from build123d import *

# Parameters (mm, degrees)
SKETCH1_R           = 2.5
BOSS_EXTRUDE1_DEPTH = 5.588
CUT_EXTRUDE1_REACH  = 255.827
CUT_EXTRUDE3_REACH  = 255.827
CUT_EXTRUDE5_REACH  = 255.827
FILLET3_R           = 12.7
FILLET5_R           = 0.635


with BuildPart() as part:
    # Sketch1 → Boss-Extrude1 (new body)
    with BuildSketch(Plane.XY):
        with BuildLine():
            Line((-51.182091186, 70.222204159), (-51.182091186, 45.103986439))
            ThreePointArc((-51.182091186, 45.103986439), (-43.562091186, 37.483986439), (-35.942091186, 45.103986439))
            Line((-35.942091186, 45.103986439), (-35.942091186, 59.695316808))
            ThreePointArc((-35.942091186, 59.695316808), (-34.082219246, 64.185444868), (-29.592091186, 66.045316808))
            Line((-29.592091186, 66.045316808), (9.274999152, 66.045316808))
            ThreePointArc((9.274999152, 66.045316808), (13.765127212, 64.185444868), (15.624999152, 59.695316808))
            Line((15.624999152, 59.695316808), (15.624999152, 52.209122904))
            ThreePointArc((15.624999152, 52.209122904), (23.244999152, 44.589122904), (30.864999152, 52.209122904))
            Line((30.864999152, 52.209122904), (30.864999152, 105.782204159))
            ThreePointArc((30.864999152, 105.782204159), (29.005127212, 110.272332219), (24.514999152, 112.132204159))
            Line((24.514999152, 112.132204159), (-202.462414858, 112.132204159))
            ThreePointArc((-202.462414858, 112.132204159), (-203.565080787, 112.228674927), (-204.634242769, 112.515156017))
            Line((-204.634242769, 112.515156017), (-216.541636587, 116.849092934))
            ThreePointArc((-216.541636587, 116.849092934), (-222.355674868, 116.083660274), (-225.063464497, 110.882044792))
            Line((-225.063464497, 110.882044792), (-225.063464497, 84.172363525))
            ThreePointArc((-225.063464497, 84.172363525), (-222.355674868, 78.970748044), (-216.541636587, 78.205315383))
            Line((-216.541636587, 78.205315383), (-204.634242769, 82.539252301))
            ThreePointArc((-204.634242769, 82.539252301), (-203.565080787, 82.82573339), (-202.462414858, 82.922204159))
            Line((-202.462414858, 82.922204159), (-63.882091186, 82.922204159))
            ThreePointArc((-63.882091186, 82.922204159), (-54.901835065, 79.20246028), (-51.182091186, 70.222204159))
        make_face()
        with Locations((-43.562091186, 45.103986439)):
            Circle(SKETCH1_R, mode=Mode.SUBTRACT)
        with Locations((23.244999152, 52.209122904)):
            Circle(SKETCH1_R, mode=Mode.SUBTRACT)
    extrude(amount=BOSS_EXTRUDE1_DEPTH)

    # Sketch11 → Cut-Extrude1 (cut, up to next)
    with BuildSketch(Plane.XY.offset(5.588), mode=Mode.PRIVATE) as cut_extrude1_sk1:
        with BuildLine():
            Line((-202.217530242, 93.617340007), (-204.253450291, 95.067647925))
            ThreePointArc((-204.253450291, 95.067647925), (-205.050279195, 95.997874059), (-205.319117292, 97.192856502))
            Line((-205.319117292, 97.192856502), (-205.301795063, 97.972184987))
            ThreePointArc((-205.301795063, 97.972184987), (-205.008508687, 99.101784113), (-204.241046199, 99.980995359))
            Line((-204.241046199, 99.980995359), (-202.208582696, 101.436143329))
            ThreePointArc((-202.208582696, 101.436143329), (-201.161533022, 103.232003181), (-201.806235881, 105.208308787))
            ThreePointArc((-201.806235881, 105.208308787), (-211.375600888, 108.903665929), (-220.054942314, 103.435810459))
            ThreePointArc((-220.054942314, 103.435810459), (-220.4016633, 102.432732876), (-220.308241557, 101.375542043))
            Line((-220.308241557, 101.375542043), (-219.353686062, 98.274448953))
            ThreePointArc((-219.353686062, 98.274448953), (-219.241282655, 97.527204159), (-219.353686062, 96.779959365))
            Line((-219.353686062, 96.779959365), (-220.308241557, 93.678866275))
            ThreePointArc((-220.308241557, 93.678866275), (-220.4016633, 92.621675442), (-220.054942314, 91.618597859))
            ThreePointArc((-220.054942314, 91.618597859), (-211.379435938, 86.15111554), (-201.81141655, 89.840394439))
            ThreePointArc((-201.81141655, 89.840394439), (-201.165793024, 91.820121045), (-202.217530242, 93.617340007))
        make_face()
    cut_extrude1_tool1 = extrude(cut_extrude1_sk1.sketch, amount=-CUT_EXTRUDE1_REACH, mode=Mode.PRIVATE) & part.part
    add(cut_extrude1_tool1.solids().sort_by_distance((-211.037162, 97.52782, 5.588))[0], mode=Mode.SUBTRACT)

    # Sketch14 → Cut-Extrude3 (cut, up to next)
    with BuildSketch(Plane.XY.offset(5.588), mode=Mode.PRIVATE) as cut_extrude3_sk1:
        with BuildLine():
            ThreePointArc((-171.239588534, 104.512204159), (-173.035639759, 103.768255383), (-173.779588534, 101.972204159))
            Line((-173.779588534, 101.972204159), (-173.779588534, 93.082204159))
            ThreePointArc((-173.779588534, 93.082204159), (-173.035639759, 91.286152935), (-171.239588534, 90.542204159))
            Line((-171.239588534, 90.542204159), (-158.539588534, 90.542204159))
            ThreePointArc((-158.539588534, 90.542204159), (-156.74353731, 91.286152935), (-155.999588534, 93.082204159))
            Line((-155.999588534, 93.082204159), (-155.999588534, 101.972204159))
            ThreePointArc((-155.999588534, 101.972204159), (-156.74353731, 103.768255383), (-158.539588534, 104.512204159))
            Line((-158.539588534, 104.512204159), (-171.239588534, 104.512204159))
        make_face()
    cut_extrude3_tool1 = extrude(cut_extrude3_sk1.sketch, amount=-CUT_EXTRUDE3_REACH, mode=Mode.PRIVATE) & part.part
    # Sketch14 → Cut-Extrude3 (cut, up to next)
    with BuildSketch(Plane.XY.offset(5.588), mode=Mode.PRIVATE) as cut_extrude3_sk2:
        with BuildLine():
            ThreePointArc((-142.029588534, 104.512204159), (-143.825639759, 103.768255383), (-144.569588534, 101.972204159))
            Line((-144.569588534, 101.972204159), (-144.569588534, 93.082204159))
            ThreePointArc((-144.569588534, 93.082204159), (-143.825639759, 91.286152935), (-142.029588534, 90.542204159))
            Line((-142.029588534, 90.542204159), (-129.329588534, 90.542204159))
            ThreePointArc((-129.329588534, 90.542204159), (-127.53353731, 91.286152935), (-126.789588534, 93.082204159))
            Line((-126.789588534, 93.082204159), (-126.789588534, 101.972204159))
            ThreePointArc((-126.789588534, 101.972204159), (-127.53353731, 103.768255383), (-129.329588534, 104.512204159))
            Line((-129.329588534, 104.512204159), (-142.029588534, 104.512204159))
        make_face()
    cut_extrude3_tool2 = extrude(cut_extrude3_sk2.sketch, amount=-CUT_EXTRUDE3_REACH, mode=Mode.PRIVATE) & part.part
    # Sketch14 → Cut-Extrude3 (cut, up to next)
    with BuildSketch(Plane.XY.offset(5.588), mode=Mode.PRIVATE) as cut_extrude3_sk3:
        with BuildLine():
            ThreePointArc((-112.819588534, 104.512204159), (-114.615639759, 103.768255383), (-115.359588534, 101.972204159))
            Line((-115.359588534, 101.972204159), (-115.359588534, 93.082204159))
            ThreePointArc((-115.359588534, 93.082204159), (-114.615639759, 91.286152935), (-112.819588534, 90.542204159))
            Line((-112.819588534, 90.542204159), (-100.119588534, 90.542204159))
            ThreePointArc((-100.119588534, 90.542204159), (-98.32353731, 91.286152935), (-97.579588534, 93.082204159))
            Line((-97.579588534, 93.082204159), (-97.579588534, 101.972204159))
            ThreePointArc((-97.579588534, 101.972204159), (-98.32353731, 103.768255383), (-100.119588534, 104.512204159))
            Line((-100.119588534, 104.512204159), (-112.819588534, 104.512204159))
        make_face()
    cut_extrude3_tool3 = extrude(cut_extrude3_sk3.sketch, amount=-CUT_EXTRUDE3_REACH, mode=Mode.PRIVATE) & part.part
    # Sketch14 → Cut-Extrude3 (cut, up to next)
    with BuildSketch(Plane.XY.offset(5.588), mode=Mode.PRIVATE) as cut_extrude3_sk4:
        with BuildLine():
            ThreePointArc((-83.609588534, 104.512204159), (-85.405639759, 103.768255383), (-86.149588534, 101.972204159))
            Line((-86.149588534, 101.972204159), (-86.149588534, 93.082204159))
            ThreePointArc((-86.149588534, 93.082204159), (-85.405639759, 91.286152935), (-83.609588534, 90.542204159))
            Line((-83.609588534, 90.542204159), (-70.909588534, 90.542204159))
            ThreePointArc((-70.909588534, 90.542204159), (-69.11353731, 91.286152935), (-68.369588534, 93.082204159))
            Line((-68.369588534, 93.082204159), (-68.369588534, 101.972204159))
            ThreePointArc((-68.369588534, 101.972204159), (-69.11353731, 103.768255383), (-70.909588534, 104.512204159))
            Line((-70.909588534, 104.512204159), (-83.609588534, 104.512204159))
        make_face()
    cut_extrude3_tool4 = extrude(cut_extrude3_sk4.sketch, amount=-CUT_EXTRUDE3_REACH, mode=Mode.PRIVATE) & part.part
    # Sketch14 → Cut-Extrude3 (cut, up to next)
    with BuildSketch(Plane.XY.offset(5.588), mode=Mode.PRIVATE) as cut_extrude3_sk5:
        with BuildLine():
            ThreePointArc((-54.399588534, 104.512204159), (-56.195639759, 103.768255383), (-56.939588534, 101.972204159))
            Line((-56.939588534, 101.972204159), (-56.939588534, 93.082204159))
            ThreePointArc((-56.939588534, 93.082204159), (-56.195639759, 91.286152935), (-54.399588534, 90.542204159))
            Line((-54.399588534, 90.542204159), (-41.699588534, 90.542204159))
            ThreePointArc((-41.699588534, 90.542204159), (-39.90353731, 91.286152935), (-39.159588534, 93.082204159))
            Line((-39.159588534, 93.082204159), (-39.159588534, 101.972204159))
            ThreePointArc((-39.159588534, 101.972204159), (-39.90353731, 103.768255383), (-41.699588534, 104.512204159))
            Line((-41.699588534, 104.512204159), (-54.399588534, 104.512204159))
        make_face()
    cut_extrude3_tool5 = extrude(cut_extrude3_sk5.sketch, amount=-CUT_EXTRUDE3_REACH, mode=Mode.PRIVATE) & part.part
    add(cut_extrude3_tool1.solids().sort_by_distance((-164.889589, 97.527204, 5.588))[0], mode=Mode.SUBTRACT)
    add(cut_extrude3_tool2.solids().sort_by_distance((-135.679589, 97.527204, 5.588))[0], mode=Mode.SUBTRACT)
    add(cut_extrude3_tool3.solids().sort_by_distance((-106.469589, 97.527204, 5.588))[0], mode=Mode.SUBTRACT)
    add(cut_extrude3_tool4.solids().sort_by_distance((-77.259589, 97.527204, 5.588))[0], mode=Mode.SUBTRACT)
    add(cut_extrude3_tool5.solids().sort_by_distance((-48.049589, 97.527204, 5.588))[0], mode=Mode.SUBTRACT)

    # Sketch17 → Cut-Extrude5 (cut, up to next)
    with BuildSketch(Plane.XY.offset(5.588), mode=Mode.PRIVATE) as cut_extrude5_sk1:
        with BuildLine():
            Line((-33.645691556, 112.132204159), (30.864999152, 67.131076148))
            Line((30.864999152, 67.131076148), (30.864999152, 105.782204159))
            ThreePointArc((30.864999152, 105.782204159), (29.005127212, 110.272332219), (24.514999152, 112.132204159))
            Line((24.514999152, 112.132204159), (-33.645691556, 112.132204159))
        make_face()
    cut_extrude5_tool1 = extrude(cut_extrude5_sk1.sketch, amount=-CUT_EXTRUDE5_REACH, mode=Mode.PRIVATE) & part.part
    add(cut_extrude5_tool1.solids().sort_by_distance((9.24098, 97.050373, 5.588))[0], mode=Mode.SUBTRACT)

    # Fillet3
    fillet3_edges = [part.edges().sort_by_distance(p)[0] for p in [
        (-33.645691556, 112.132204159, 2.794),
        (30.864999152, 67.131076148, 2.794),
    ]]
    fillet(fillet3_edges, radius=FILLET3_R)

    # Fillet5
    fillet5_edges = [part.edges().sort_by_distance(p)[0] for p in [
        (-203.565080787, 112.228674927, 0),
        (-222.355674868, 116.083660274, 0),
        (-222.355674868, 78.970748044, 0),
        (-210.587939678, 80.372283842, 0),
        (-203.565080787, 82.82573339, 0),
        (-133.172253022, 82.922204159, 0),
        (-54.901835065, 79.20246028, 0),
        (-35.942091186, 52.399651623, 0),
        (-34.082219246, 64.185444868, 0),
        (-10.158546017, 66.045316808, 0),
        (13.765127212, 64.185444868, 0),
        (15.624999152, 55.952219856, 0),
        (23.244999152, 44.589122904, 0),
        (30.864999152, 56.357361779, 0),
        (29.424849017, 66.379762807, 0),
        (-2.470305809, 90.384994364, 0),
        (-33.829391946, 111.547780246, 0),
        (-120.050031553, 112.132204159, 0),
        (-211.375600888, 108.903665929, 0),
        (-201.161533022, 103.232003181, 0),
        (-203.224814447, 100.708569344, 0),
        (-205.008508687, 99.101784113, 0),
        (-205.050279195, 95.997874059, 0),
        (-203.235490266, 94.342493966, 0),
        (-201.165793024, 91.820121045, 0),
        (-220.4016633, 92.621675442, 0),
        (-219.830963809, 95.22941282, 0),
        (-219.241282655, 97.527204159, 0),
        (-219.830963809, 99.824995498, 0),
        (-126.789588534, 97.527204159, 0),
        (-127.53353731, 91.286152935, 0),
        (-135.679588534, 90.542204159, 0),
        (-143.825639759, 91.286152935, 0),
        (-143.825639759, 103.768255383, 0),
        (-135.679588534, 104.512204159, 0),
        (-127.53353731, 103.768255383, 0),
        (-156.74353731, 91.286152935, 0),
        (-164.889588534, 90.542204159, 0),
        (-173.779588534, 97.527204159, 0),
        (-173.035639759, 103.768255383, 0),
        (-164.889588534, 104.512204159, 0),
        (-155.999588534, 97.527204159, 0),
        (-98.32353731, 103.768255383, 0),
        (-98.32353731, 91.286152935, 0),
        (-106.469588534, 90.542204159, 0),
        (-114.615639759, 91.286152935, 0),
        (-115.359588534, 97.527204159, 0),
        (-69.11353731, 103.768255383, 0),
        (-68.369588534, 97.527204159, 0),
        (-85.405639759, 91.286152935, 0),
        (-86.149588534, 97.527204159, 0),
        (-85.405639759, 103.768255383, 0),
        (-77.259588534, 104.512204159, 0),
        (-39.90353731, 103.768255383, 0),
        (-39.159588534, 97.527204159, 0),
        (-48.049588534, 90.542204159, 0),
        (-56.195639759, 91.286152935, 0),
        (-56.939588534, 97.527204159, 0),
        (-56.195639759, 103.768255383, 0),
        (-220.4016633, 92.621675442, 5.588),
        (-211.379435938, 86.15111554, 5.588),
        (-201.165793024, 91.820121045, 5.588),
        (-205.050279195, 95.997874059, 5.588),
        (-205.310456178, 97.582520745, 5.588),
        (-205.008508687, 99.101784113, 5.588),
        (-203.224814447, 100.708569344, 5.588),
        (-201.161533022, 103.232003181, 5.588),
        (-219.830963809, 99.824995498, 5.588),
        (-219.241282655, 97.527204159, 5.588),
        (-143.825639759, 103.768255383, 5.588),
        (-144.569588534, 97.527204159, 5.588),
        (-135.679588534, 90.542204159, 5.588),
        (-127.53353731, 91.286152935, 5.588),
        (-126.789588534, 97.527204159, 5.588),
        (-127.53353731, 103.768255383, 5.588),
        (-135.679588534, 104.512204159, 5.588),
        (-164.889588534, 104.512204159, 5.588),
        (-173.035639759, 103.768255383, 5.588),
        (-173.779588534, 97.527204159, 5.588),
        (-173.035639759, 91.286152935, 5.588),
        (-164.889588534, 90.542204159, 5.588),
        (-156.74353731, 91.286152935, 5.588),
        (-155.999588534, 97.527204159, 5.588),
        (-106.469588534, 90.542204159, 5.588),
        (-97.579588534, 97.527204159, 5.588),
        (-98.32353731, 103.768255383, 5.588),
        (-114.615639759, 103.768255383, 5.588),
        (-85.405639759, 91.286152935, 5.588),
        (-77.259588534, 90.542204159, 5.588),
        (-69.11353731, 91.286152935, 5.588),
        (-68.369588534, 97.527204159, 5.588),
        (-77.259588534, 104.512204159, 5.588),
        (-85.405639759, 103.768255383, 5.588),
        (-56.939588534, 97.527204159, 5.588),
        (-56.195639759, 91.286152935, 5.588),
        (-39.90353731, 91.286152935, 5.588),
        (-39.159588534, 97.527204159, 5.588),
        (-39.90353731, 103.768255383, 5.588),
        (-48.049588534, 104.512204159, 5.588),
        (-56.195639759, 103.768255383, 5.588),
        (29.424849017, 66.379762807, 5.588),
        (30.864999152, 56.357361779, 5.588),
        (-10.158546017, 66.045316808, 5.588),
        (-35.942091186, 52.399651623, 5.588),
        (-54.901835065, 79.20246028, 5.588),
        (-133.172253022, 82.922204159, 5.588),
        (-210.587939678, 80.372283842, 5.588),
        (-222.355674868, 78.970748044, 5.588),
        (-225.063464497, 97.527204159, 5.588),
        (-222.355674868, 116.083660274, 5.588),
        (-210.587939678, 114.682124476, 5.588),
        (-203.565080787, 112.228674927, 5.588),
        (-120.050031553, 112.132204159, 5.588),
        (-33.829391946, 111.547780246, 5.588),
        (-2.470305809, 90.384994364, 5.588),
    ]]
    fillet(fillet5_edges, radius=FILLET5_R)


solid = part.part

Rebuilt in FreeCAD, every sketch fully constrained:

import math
import FreeCAD as App
import Part
import Sketcher
Q = App.Units.Quantity


def edges_at(feature, points):
    """Names of the edges that pass closest to the given points."""
    edges = feature.Shape.Edges
    near = lambda p: min(range(len(edges)), key=lambda i: edges[i].distToShape(Part.Vertex(*p))[0])
    return sorted({f"Edge{near(p) + 1}" for p in points})

doc = App.newDocument("Part")
params = doc.addObject("Spreadsheet::Sheet", "Params")
for row, (alias, value) in enumerate([
    ("sketch1_radius", "0.3 in"),
    ("sketch1_radius2", "0.5 in"),
    ("sketch1_radius3", "0.25 in"),
    ("pad1_length", "0.22 in"),
    ("sketch2_radius", "0.1 in"),
    ("sketch2_radius2", "0.1 in"),
    ("sketch2_radius3", "0.1 in"),
    ("sketch2_radius4", "0.1 in"),
    ("sketch2_radius5", "0.1 in"),
    ("sketch3_radius", "0.1 in"),
    ("sketch3_width", "0.5 in"),
    ("sketch3_height", "0.35 in"),
    ("sketch4_radius", "0.1 in"),
    ("sketch4_width", "0.5 in"),
    ("sketch4_height", "0.35 in"),
    ("sketch5_radius", "0.1 in"),
    ("sketch5_width", "0.5 in"),
    ("sketch5_height", "0.35 in"),
    ("sketch6_radius", "0.1 in"),
    ("sketch6_width", "0.5 in"),
    ("sketch6_height", "0.35 in"),
    ("sketch7_radius", "0.1 in"),
    ("sketch7_width", "0.5 in"),
    ("sketch7_height", "0.35 in"),
    ("sketch8_radius", "0.25 in"),
    ("fillet_radius", "0.5 in"),
    ("fillet2_radius", "0.025 in"),
], start=1):
    params.set(f"A{row}", alias)
    params.set(f"B{row}", "=" + value)
    params.setAlias(f"B{row}", alias)

body = doc.addObject("PartDesign::Body", "Body")

# Sketch on XY plane
sketch1 = body.newObject("Sketcher::SketchObject", "Sketch")
sketch1.AttachmentSupport = (doc.getObject("XY_Plane"), [""])
sketch1.MapMode = "FlatFace"
sketch1.addGeometry([
    Part.LineSegment(App.Vector(-51.2, 70.2, 0), App.Vector(-51.2, 45.1, 0)),  # 0
    Part.ArcOfCircle(Part.Circle(App.Vector(-43.6, 45.1, 0), App.Vector(0, 0, 1), 7.6), math.radians(180), math.radians(360)),  # 1
    Part.LineSegment(App.Vector(-35.9, 45.1, 0), App.Vector(-35.9, 59.7, 0)),  # 2
    Part.ArcOfCircle(Part.Circle(App.Vector(-29.6, 59.7, 0), App.Vector(0, 0, 1), 6.4), math.radians(90), math.radians(180)),  # 3
    Part.LineSegment(App.Vector(-29.6, 66, 0), App.Vector(9.3, 66, 0)),  # 4
    Part.ArcOfCircle(Part.Circle(App.Vector(9.3, 59.7, 0), App.Vector(0, 0, 1), 6.4), math.radians(0), math.radians(90)),  # 5
    Part.LineSegment(App.Vector(15.6, 59.7, 0), App.Vector(15.6, 52.2, 0)),  # 6
    Part.ArcOfCircle(Part.Circle(App.Vector(23.2, 52.2, 0), App.Vector(0, 0, 1), 7.6), math.radians(180), math.radians(360)),  # 7
    Part.LineSegment(App.Vector(30.9, 52.2, 0), App.Vector(30.9, 105.8, 0)),  # 8
    Part.ArcOfCircle(Part.Circle(App.Vector(24.5, 105.8, 0), App.Vector(0, 0, 1), 6.4), math.radians(0), math.radians(90)),  # 9
    Part.LineSegment(App.Vector(24.5, 112.1, 0), App.Vector(-202.5, 112.1, 0)),  # 10
    Part.ArcOfCircle(Part.Circle(App.Vector(-202.5, 118.5, 0), App.Vector(0, 0, 1), 6.3), math.radians(-110), math.radians(-90)),  # 11
    Part.LineSegment(App.Vector(-204.6, 112.5, 0), App.Vector(-216.5, 116.8, 0)),  # 12
    Part.ArcOfCircle(Part.Circle(App.Vector(-218.7, 110.9, 0), App.Vector(0, 0, 1), 6.3), math.radians(70), math.radians(180)),  # 13
    Part.LineSegment(App.Vector(-225.1, 110.9, 0), App.Vector(-225.1, 84.2, 0)),  # 14
    Part.ArcOfCircle(Part.Circle(App.Vector(-218.7, 84.2, 0), App.Vector(0, 0, 1), 6.3), math.radians(180), math.radians(290)),  # 15
    Part.LineSegment(App.Vector(-216.5, 78.2, 0), App.Vector(-204.6, 82.5, 0)),  # 16
    Part.ArcOfCircle(Part.Circle(App.Vector(-202.5, 76.6, 0), App.Vector(0, 0, 1), 6.4), math.radians(90), math.radians(110)),  # 17
    Part.LineSegment(App.Vector(-202.5, 82.9, 0), App.Vector(-63.9, 82.9, 0)),  # 18
    Part.ArcOfCircle(Part.Circle(App.Vector(-63.9, 70.2, 0), App.Vector(0, 0, 1), 12.7), math.radians(0), math.radians(90)),  # 19
    Part.Circle(App.Vector(-43.6, 45.1, 0), App.Vector(0, 0, 1), 2.5),  # 20
    Part.Circle(App.Vector(23.2, 52.2, 0), App.Vector(0, 0, 1), 2.5),  # 21
], False)
sketch1.addConstraint([
    Sketcher.Constraint("Tangent", 0, 2, 1, 1),
    Sketcher.Constraint("Tangent", 1, 2, 2, 1),
    Sketcher.Constraint("Tangent", 2, 2, 3, 2),
    Sketcher.Constraint("Tangent", 3, 1, 4, 1),
    Sketcher.Constraint("Tangent", 4, 2, 5, 2),
    Sketcher.Constraint("Tangent", 5, 1, 6, 1),
    Sketcher.Constraint("Tangent", 6, 2, 7, 1),
    Sketcher.Constraint("Tangent", 7, 2, 8, 1),
    Sketcher.Constraint("Tangent", 8, 2, 9, 1),
    Sketcher.Constraint("Tangent", 9, 2, 10, 1),
    Sketcher.Constraint("Tangent", 10, 2, 11, 2),
    Sketcher.Constraint("Tangent", 11, 1, 12, 1),
    Sketcher.Constraint("Tangent", 12, 2, 13, 1),
    Sketcher.Constraint("Tangent", 13, 2, 14, 1),
    Sketcher.Constraint("Tangent", 14, 2, 15, 1),
    Sketcher.Constraint("Tangent", 15, 2, 16, 1),
    Sketcher.Constraint("Tangent", 16, 2, 17, 2),
    Sketcher.Constraint("Tangent", 17, 1, 18, 1),
    Sketcher.Constraint("Tangent", 18, 2, 19, 2),
    Sketcher.Constraint("Tangent", 19, 1, 0, 1),
    Sketcher.Constraint("Vertical", 0),
    Sketcher.Constraint("Vertical", 2),
    Sketcher.Constraint("Horizontal", 4),
    Sketcher.Constraint("Vertical", 6),
    Sketcher.Constraint("Vertical", 8),
    Sketcher.Constraint("Horizontal", 10),
    Sketcher.Constraint("Vertical", 14),
    Sketcher.Constraint("Horizontal", 18),
    Sketcher.Constraint("Coincident", 20, 3, 1, 3),
    Sketcher.Constraint("Coincident", 21, 3, 7, 3),
    Sketcher.Constraint("Equal", 3, 5),
    Sketcher.Constraint("Equal", 1, 7),
    Sketcher.Constraint("Equal", 5, 9),
    Sketcher.Constraint("Equal", 9, 11),
    Sketcher.Constraint("Equal", 11, 13),
    Sketcher.Constraint("Equal", 13, 15),
    Sketcher.Constraint("Equal", 15, 17),
    Sketcher.Constraint("Equal", 20, 21),
    Sketcher.Constraint("Vertical", 11, 3, 17, 3),
    Sketcher.Constraint("Vertical", 12, 2, 15, 2),
    Sketcher.Constraint("Radius", 1, Q("0.3 in")),
    Sketcher.Constraint("Radius", 19, Q("0.5 in")),
    Sketcher.Constraint("Radius", 3, Q("0.25 in")),
    Sketcher.Constraint("Angle", 12, Q("160 deg")),
    Sketcher.Constraint("DistanceY", 19, 3, 9, 3, Q("1.4 in")),
    Sketcher.Constraint("Diameter", 20, Q("5 mm")),
    Sketcher.Constraint("DistanceX", 13, 3, 11, 1, Q("0.5543001 in")),
    Sketcher.Constraint("DistanceX", 4, 1, 4, 2, Q("38.86709 mm")),
    Sketcher.Constraint("DistanceY", 2, 1, 2, 2, Q("14.59133 mm")),
    Sketcher.Constraint("DistanceY", 8, 1, 8, 2, Q("53.573081 mm")),
    Sketcher.Constraint("DistanceX", -1, 1, 5, 3, Q("9.274999 mm")),
    Sketcher.Constraint("DistanceX", 10, 2, 10, 1, Q("226.977414 mm")),
    Sketcher.Constraint("DistanceY", 0, 2, 0, 1, Q("25.118218 mm")),
    Sketcher.Constraint("DistanceY", -1, 1, 1, 3, Q("45.103986 mm")),
])
sketch1.setExpression("Constraints[40]", "Params.sketch1_radius")
sketch1.setExpression("Constraints[41]", "Params.sketch1_radius2")
sketch1.setExpression("Constraints[42]", "Params.sketch1_radius3")
pad1 = body.newObject("PartDesign::Pad", "Pad")
pad1.Profile = sketch1
pad1.setExpression("Length", "Params.pad1_length")

# Sketch on XY plane
sketch2 = body.newObject("Sketcher::SketchObject", "Sketch001")
sketch2.AttachmentSupport = (doc.getObject("XY_Plane"), [""])
sketch2.MapMode = "FlatFace"
sketch2.AttachmentOffset = App.Placement(App.Vector(0, 0, 0.22 * 25.4), App.Rotation())
sketch2.addGeometry([
    Part.LineSegment(App.Vector(-202.21753, 93.61734, 0), App.Vector(-204.25345, 95.067648, 0)),  # 0
    Part.ArcOfCircle(Part.Circle(App.Vector(-202.779744, 97.136414, 0), App.Vector(0, 0, 1), 2.54), math.radians(178.726689), math.radians(234.53545)),  # 1
    Part.LineSegment(App.Vector(-205.319117, 97.192857, 0), App.Vector(-205.301795, 97.972185, 0)),  # 2
    Part.ArcOfCircle(Part.Circle(App.Vector(-202.762422, 97.915742, 0), App.Vector(0, 0, 1), 2.54), math.radians(125.600876), math.radians(178.726689)),  # 3
    Part.LineSegment(App.Vector(-204.241046, 99.980995, 0), App.Vector(-202.208583, 101.436143, 0)),  # 4
    Part.ArcOfCircle(Part.Circle(App.Vector(-203.687207, 103.501397, 0), App.Vector(0, 0, 1), 2.54), math.radians(-54.399124), math.radians(42.222593)),  # 5
    Part.ArcOfCircle(Part.Circle(App.Vector(-210.270604, 97.527204, 0), App.Vector(0, 0, 1), 11.43), math.radians(42.222593), math.radians(148.872889)),  # 6
    Part.ArcOfCircle(Part.Circle(App.Vector(-217.880645, 102.122787, 0), App.Vector(0, 0, 1), 2.54), math.radians(148.872889), math.radians(197.109024)),  # 7
    Part.LineSegment(App.Vector(-220.308242, 101.375542, 0), App.Vector(-219.353686, 98.274449, 0)),  # 8
    Part.ArcOfCircle(Part.Circle(App.Vector(-221.781283, 97.527204, 0), App.Vector(0, 0, 1), 2.54), math.radians(-17.109024), math.radians(17.109024)),  # 9
    Part.LineSegment(App.Vector(-219.353686, 96.779959, 0), App.Vector(-220.308242, 93.678866, 0)),  # 10
    Part.ArcOfCircle(Part.Circle(App.Vector(-217.880645, 92.931621, 0), App.Vector(0, 0, 1), 2.54), math.radians(162.890976), math.radians(211.127111)),  # 11
    Part.ArcOfCircle(Part.Circle(App.Vector(-210.270604, 97.527204, 0), App.Vector(0, 0, 1), 11.43), math.radians(-148.872889), math.radians(-42.261223)),  # 12
    Part.ArcOfCircle(Part.Circle(App.Vector(-203.691236, 91.548574, 0), App.Vector(0, 0, 1), 2.54), math.radians(-42.261223), math.radians(54.53545)),  # 13
], False)
sketch2.addConstraint([
    Sketcher.Constraint("Coincident", 0, 2, 1, 2),
    Sketcher.Constraint("Coincident", 1, 1, 2, 1),
    Sketcher.Constraint("Coincident", 2, 2, 3, 2),
    Sketcher.Constraint("Coincident", 3, 1, 4, 1),
    Sketcher.Constraint("Coincident", 4, 2, 5, 1),
    Sketcher.Constraint("Coincident", 5, 2, 6, 1),
    Sketcher.Constraint("Coincident", 6, 2, 7, 1),
    Sketcher.Constraint("Coincident", 7, 2, 8, 1),
    Sketcher.Constraint("Coincident", 8, 2, 9, 2),
    Sketcher.Constraint("Coincident", 9, 1, 10, 1),
    Sketcher.Constraint("Coincident", 10, 2, 11, 1),
    Sketcher.Constraint("Coincident", 11, 2, 12, 1),
    Sketcher.Constraint("Coincident", 12, 2, 13, 1),
    Sketcher.Constraint("Coincident", 13, 2, 0, 1),
    Sketcher.Constraint("Coincident", 12, 3, 6, 3),
    Sketcher.Constraint("Radius", 1, Q("0.1 in")),
    Sketcher.Constraint("Radius", 3, Q("0.1 in")),
    Sketcher.Constraint("Radius", 5, Q("0.1 in")),
    Sketcher.Constraint("Radius", 7, Q("0.1 in")),
    Sketcher.Constraint("Radius", 9, Q("0.1 in")),
    Sketcher.Constraint("Radius", 11, Q("0.1 in")),
    Sketcher.Constraint("Radius", 13, Q("0.1 in")),
    Sketcher.Constraint("Radius", 6, Q("0.45 in")),
    Sketcher.Constraint("Radius", 12, Q("0.45 in")),
    Sketcher.Constraint("DistanceX", 7, 3, 1, 3, Q("15.1009 mm")),
    Sketcher.Constraint("DistanceX", 11, 3, 1, 3, Q("15.1009 mm")),
    Sketcher.Constraint("DistanceX", 3, 1, 1, 3, Q("1.461302 mm")),
    Sketcher.Constraint("DistanceY", 3, 1, 5, 3, Q("3.520401 mm")),
    Sketcher.Constraint("DistanceY", 3, 3, 4, 2, Q("3.520401 mm")),
    Sketcher.Constraint("DistanceX", 7, 2, 6, 2, Q("0.253299 mm")),
    Sketcher.Constraint("DistanceX", 10, 2, 11, 2, Q("0.253299 mm")),
    Sketcher.Constraint("DistanceX", 1, 1, 12, 2, Q("3.507701 mm")),
    Sketcher.Constraint("Distance", 2, Q("0.779521 mm")),
    Sketcher.Constraint("Distance", 8, Q("3.244681 mm")),
    Sketcher.Constraint("Distance", 10, Q("3.244681 mm")),
    Sketcher.Constraint("DistanceY", -1, 1, 11, 3, Q("92.931621 mm")),
    Sketcher.Constraint("DistanceX", 0, 2, -1, 1, Q("204.25345 mm")),
    Sketcher.Constraint("DistanceY", -1, 1, 5, 2, Q("105.208309 mm")),
    Sketcher.Constraint("DistanceY", -1, 1, 6, 2, Q("103.43581 mm")),
    Sketcher.Constraint("DistanceX", 7, 2, -1, 1, Q("220.308242 mm")),
    Sketcher.Constraint("DistanceY", -1, 1, 8, 2, Q("98.274449 mm")),
    Sketcher.Constraint("DistanceY", -1, 1, 9, 1, Q("96.779959 mm")),
    Sketcher.Constraint("DistanceX", 10, 2, -1, 1, Q("220.308242 mm")),
    Sketcher.Constraint("DistanceX", 13, 2, -1, 1, Q("202.21753 mm")),
    Sketcher.Constraint("DistanceY", -1, 1, 13, 2, Q("93.61734 mm")),
    Sketcher.Constraint("DistanceY", 1, 3, 3, 3, Q("0.779328 mm")),
    Sketcher.Constraint("DistanceX", 6, 3, 1, 3, Q("7.49086 mm")),
    Sketcher.Constraint("DistanceY", 1, 3, 6, 3, Q("0.390791 mm")),
    Sketcher.Constraint("DistanceX", 6, 3, 3, 3, Q("7.508182 mm")),
    Sketcher.Constraint("DistanceY", 0, 2, 1, 1, Q("2.125209 mm")),
])
sketch2.setExpression("Constraints[15]", "Params.sketch2_radius")
sketch2.setExpression("Constraints[16]", "Params.sketch2_radius2")
sketch2.setExpression("Constraints[17]", "Params.sketch2_radius3")
sketch2.setExpression("Constraints[18]", "Params.sketch2_radius4")
sketch2.setExpression("Constraints[19]", "Params.sketch2_radius5")
pocket1 = body.newObject("PartDesign::Pocket", "Pocket")
pocket1.Profile = sketch2
pocket1.Type = "UpToFirst"

# Sketch on XY plane
sketch3 = body.newObject("Sketcher::SketchObject", "Sketch002")
sketch3.AttachmentSupport = (doc.getObject("XY_Plane"), [""])
sketch3.MapMode = "FlatFace"
sketch3.AttachmentOffset = App.Placement(App.Vector(0, 0, 0.22 * 25.4), App.Rotation())
sketch3.addGeometry([
    Part.ArcOfCircle(Part.Circle(App.Vector(-171.2, 102, 0), App.Vector(0, 0, 1), 2.5), math.radians(90), math.radians(180)),  # 0
    Part.LineSegment(App.Vector(-173.8, 102, 0), App.Vector(-173.8, 93.1, 0)),  # 1
    Part.ArcOfCircle(Part.Circle(App.Vector(-171.2, 93.1, 0), App.Vector(0, 0, 1), 2.5), math.radians(180), math.radians(270)),  # 2
    Part.LineSegment(App.Vector(-171.2, 90.5, 0), App.Vector(-158.5, 90.5, 0)),  # 3
    Part.ArcOfCircle(Part.Circle(App.Vector(-158.5, 93.1, 0), App.Vector(0, 0, 1), 2.5), math.radians(-90), math.radians(0)),  # 4
    Part.LineSegment(App.Vector(-156, 93.1, 0), App.Vector(-156, 102, 0)),  # 5
    Part.ArcOfCircle(Part.Circle(App.Vector(-158.5, 102, 0), App.Vector(0, 0, 1), 2.5), math.radians(0), math.radians(90)),  # 6
    Part.LineSegment(App.Vector(-158.5, 104.5, 0), App.Vector(-171.2, 104.5, 0)),  # 7
], False)
sketch3.addConstraint([
    Sketcher.Constraint("Tangent", 0, 2, 1, 1),
    Sketcher.Constraint("Tangent", 1, 2, 2, 1),
    Sketcher.Constraint("Tangent", 2, 2, 3, 1),
    Sketcher.Constraint("Tangent", 3, 2, 4, 1),
    Sketcher.Constraint("Tangent", 4, 2, 5, 1),
    Sketcher.Constraint("Tangent", 5, 2, 6, 1),
    Sketcher.Constraint("Tangent", 6, 2, 7, 1),
    Sketcher.Constraint("Tangent", 7, 2, 0, 1),
    Sketcher.Constraint("Vertical", 1),
    Sketcher.Constraint("Horizontal", 3),
    Sketcher.Constraint("Vertical", 5),
    Sketcher.Constraint("Horizontal", 7),
    Sketcher.Constraint("Equal", 0, 2),
    Sketcher.Constraint("Equal", 2, 4),
    Sketcher.Constraint("Equal", 4, 6),
    Sketcher.Constraint("Radius", 0, Q("0.1 in")),
    Sketcher.Constraint("DistanceX", 3, 1, 3, 2, Q("0.5 in")),
    Sketcher.Constraint("DistanceY", 1, 2, 1, 1, Q("0.35 in")),
    Sketcher.Constraint("DistanceX", 0, 3, -1, 1, Q("171.239589 mm")),
    Sketcher.Constraint("DistanceY", -1, 1, 0, 3, Q("101.972204 mm")),
])
sketch3.setExpression("Constraints[15]", "Params.sketch3_radius")
sketch3.setExpression("Constraints[16]", "Params.sketch3_width")
sketch3.setExpression("Constraints[17]", "Params.sketch3_height")
pocket2 = body.newObject("PartDesign::Pocket", "Pocket001")
pocket2.Profile = sketch3
pocket2.Type = "UpToFirst"

# Sketch on XY plane
sketch4 = body.newObject("Sketcher::SketchObject", "Sketch003")
sketch4.AttachmentSupport = (doc.getObject("XY_Plane"), [""])
sketch4.MapMode = "FlatFace"
sketch4.AttachmentOffset = App.Placement(App.Vector(0, 0, 0.22 * 25.4), App.Rotation())
sketch4.addGeometry([
    Part.ArcOfCircle(Part.Circle(App.Vector(-142, 102, 0), App.Vector(0, 0, 1), 2.5), math.radians(90), math.radians(180)),  # 0
    Part.LineSegment(App.Vector(-144.6, 102, 0), App.Vector(-144.6, 93.1, 0)),  # 1
    Part.ArcOfCircle(Part.Circle(App.Vector(-142, 93.1, 0), App.Vector(0, 0, 1), 2.5), math.radians(180), math.radians(270)),  # 2
    Part.LineSegment(App.Vector(-142, 90.5, 0), App.Vector(-129.3, 90.5, 0)),  # 3
    Part.ArcOfCircle(Part.Circle(App.Vector(-129.3, 93.1, 0), App.Vector(0, 0, 1), 2.5), math.radians(-90), math.radians(0)),  # 4
    Part.LineSegment(App.Vector(-126.8, 93.1, 0), App.Vector(-126.8, 102, 0)),  # 5
    Part.ArcOfCircle(Part.Circle(App.Vector(-129.3, 102, 0), App.Vector(0, 0, 1), 2.5), math.radians(0), math.radians(90)),  # 6
    Part.LineSegment(App.Vector(-129.3, 104.5, 0), App.Vector(-142, 104.5, 0)),  # 7
], False)
sketch4.addConstraint([
    Sketcher.Constraint("Tangent", 0, 2, 1, 1),
    Sketcher.Constraint("Tangent", 1, 2, 2, 1),
    Sketcher.Constraint("Tangent", 2, 2, 3, 1),
    Sketcher.Constraint("Tangent", 3, 2, 4, 1),
    Sketcher.Constraint("Tangent", 4, 2, 5, 1),
    Sketcher.Constraint("Tangent", 5, 2, 6, 1),
    Sketcher.Constraint("Tangent", 6, 2, 7, 1),
    Sketcher.Constraint("Tangent", 7, 2, 0, 1),
    Sketcher.Constraint("Vertical", 1),
    Sketcher.Constraint("Horizontal", 3),
    Sketcher.Constraint("Vertical", 5),
    Sketcher.Constraint("Horizontal", 7),
    Sketcher.Constraint("Equal", 0, 2),
    Sketcher.Constraint("Equal", 2, 4),
    Sketcher.Constraint("Equal", 4, 6),
    Sketcher.Constraint("Radius", 0, Q("0.1 in")),
    Sketcher.Constraint("DistanceX", 3, 1, 3, 2, Q("0.5 in")),
    Sketcher.Constraint("DistanceY", 1, 2, 1, 1, Q("0.35 in")),
    Sketcher.Constraint("DistanceX", 0, 3, -1, 1, Q("142.029589 mm")),
    Sketcher.Constraint("DistanceY", -1, 1, 0, 3, Q("101.972204 mm")),
])
sketch4.setExpression("Constraints[15]", "Params.sketch4_radius")
sketch4.setExpression("Constraints[16]", "Params.sketch4_width")
sketch4.setExpression("Constraints[17]", "Params.sketch4_height")
pocket3 = body.newObject("PartDesign::Pocket", "Pocket002")
pocket3.Profile = sketch4
pocket3.Type = "UpToFirst"

# Sketch on XY plane
sketch5 = body.newObject("Sketcher::SketchObject", "Sketch004")
sketch5.AttachmentSupport = (doc.getObject("XY_Plane"), [""])
sketch5.MapMode = "FlatFace"
sketch5.AttachmentOffset = App.Placement(App.Vector(0, 0, 0.22 * 25.4), App.Rotation())
sketch5.addGeometry([
    Part.ArcOfCircle(Part.Circle(App.Vector(-112.8, 102, 0), App.Vector(0, 0, 1), 2.5), math.radians(90), math.radians(180)),  # 0
    Part.LineSegment(App.Vector(-115.4, 102, 0), App.Vector(-115.4, 93.1, 0)),  # 1
    Part.ArcOfCircle(Part.Circle(App.Vector(-112.8, 93.1, 0), App.Vector(0, 0, 1), 2.5), math.radians(180), math.radians(270)),  # 2
    Part.LineSegment(App.Vector(-112.8, 90.5, 0), App.Vector(-100.1, 90.5, 0)),  # 3
    Part.ArcOfCircle(Part.Circle(App.Vector(-100.1, 93.1, 0), App.Vector(0, 0, 1), 2.5), math.radians(-90), math.radians(0)),  # 4
    Part.LineSegment(App.Vector(-97.6, 93.1, 0), App.Vector(-97.6, 102, 0)),  # 5
    Part.ArcOfCircle(Part.Circle(App.Vector(-100.1, 102, 0), App.Vector(0, 0, 1), 2.5), math.radians(0), math.radians(90)),  # 6
    Part.LineSegment(App.Vector(-100.1, 104.5, 0), App.Vector(-112.8, 104.5, 0)),  # 7
], False)
sketch5.addConstraint([
    Sketcher.Constraint("Tangent", 0, 2, 1, 1),
    Sketcher.Constraint("Tangent", 1, 2, 2, 1),
    Sketcher.Constraint("Tangent", 2, 2, 3, 1),
    Sketcher.Constraint("Tangent", 3, 2, 4, 1),
    Sketcher.Constraint("Tangent", 4, 2, 5, 1),
    Sketcher.Constraint("Tangent", 5, 2, 6, 1),
    Sketcher.Constraint("Tangent", 6, 2, 7, 1),
    Sketcher.Constraint("Tangent", 7, 2, 0, 1),
    Sketcher.Constraint("Vertical", 1),
    Sketcher.Constraint("Horizontal", 3),
    Sketcher.Constraint("Vertical", 5),
    Sketcher.Constraint("Horizontal", 7),
    Sketcher.Constraint("Equal", 0, 2),
    Sketcher.Constraint("Equal", 2, 4),
    Sketcher.Constraint("Equal", 4, 6),
    Sketcher.Constraint("Radius", 0, Q("0.1 in")),
    Sketcher.Constraint("DistanceX", 3, 1, 3, 2, Q("0.5 in")),
    Sketcher.Constraint("DistanceY", 1, 2, 1, 1, Q("0.35 in")),
    Sketcher.Constraint("DistanceX", 0, 3, -1, 1, Q("112.819589 mm")),
    Sketcher.Constraint("DistanceY", -1, 1, 0, 3, Q("101.972204 mm")),
])
sketch5.setExpression("Constraints[15]", "Params.sketch5_radius")
sketch5.setExpression("Constraints[16]", "Params.sketch5_width")
sketch5.setExpression("Constraints[17]", "Params.sketch5_height")
pocket4 = body.newObject("PartDesign::Pocket", "Pocket003")
pocket4.Profile = sketch5
pocket4.Type = "UpToFirst"

# Sketch on XY plane
sketch6 = body.newObject("Sketcher::SketchObject", "Sketch005")
sketch6.AttachmentSupport = (doc.getObject("XY_Plane"), [""])
sketch6.MapMode = "FlatFace"
sketch6.AttachmentOffset = App.Placement(App.Vector(0, 0, 0.22 * 25.4), App.Rotation())
sketch6.addGeometry([
    Part.ArcOfCircle(Part.Circle(App.Vector(-83.6, 102, 0), App.Vector(0, 0, 1), 2.5), math.radians(90), math.radians(180)),  # 0
    Part.LineSegment(App.Vector(-86.1, 102, 0), App.Vector(-86.1, 93.1, 0)),  # 1
    Part.ArcOfCircle(Part.Circle(App.Vector(-83.6, 93.1, 0), App.Vector(0, 0, 1), 2.5), math.radians(180), math.radians(270)),  # 2
    Part.LineSegment(App.Vector(-83.6, 90.5, 0), App.Vector(-70.9, 90.5, 0)),  # 3
    Part.ArcOfCircle(Part.Circle(App.Vector(-70.9, 93.1, 0), App.Vector(0, 0, 1), 2.5), math.radians(-90), math.radians(0)),  # 4
    Part.LineSegment(App.Vector(-68.4, 93.1, 0), App.Vector(-68.4, 102, 0)),  # 5
    Part.ArcOfCircle(Part.Circle(App.Vector(-70.9, 102, 0), App.Vector(0, 0, 1), 2.5), math.radians(0), math.radians(90)),  # 6
    Part.LineSegment(App.Vector(-70.9, 104.5, 0), App.Vector(-83.6, 104.5, 0)),  # 7
], False)
sketch6.addConstraint([
    Sketcher.Constraint("Tangent", 0, 2, 1, 1),
    Sketcher.Constraint("Tangent", 1, 2, 2, 1),
    Sketcher.Constraint("Tangent", 2, 2, 3, 1),
    Sketcher.Constraint("Tangent", 3, 2, 4, 1),
    Sketcher.Constraint("Tangent", 4, 2, 5, 1),
    Sketcher.Constraint("Tangent", 5, 2, 6, 1),
    Sketcher.Constraint("Tangent", 6, 2, 7, 1),
    Sketcher.Constraint("Tangent", 7, 2, 0, 1),
    Sketcher.Constraint("Vertical", 1),
    Sketcher.Constraint("Horizontal", 3),
    Sketcher.Constraint("Vertical", 5),
    Sketcher.Constraint("Horizontal", 7),
    Sketcher.Constraint("Equal", 0, 2),
    Sketcher.Constraint("Equal", 2, 4),
    Sketcher.Constraint("Equal", 4, 6),
    Sketcher.Constraint("Radius", 0, Q("0.1 in")),
    Sketcher.Constraint("DistanceX", 3, 1, 3, 2, Q("0.5 in")),
    Sketcher.Constraint("DistanceY", 1, 2, 1, 1, Q("0.35 in")),
    Sketcher.Constraint("DistanceX", 0, 3, -1, 1, Q("83.609589 mm")),
    Sketcher.Constraint("DistanceY", -1, 1, 0, 3, Q("101.972204 mm")),
])
sketch6.setExpression("Constraints[15]", "Params.sketch6_radius")
sketch6.setExpression("Constraints[16]", "Params.sketch6_width")
sketch6.setExpression("Constraints[17]", "Params.sketch6_height")
pocket5 = body.newObject("PartDesign::Pocket", "Pocket004")
pocket5.Profile = sketch6
pocket5.Type = "UpToFirst"

# Sketch on XY plane
sketch7 = body.newObject("Sketcher::SketchObject", "Sketch006")
sketch7.AttachmentSupport = (doc.getObject("XY_Plane"), [""])
sketch7.MapMode = "FlatFace"
sketch7.AttachmentOffset = App.Placement(App.Vector(0, 0, 0.22 * 25.4), App.Rotation())
sketch7.addGeometry([
    Part.ArcOfCircle(Part.Circle(App.Vector(-54.4, 102, 0), App.Vector(0, 0, 1), 2.5), math.radians(90), math.radians(180)),  # 0
    Part.LineSegment(App.Vector(-56.9, 102, 0), App.Vector(-56.9, 93.1, 0)),  # 1
    Part.ArcOfCircle(Part.Circle(App.Vector(-54.4, 93.1, 0), App.Vector(0, 0, 1), 2.5), math.radians(180), math.radians(270)),  # 2
    Part.LineSegment(App.Vector(-54.4, 90.5, 0), App.Vector(-41.7, 90.5, 0)),  # 3
    Part.ArcOfCircle(Part.Circle(App.Vector(-41.7, 93.1, 0), App.Vector(0, 0, 1), 2.5), math.radians(-90), math.radians(0)),  # 4
    Part.LineSegment(App.Vector(-39.2, 93.1, 0), App.Vector(-39.2, 102, 0)),  # 5
    Part.ArcOfCircle(Part.Circle(App.Vector(-41.7, 102, 0), App.Vector(0, 0, 1), 2.5), math.radians(0), math.radians(90)),  # 6
    Part.LineSegment(App.Vector(-41.7, 104.5, 0), App.Vector(-54.4, 104.5, 0)),  # 7
], False)
sketch7.addConstraint([
    Sketcher.Constraint("Tangent", 0, 2, 1, 1),
    Sketcher.Constraint("Tangent", 1, 2, 2, 1),
    Sketcher.Constraint("Tangent", 2, 2, 3, 1),
    Sketcher.Constraint("Tangent", 3, 2, 4, 1),
    Sketcher.Constraint("Tangent", 4, 2, 5, 1),
    Sketcher.Constraint("Tangent", 5, 2, 6, 1),
    Sketcher.Constraint("Tangent", 6, 2, 7, 1),
    Sketcher.Constraint("Tangent", 7, 2, 0, 1),
    Sketcher.Constraint("Vertical", 1),
    Sketcher.Constraint("Horizontal", 3),
    Sketcher.Constraint("Vertical", 5),
    Sketcher.Constraint("Horizontal", 7),
    Sketcher.Constraint("Equal", 0, 2),
    Sketcher.Constraint("Equal", 2, 4),
    Sketcher.Constraint("Equal", 4, 6),
    Sketcher.Constraint("Radius", 0, Q("0.1 in")),
    Sketcher.Constraint("DistanceX", 3, 1, 3, 2, Q("0.5 in")),
    Sketcher.Constraint("DistanceY", 1, 2, 1, 1, Q("0.35 in")),
    Sketcher.Constraint("DistanceX", 0, 3, -1, 1, Q("54.399589 mm")),
    Sketcher.Constraint("DistanceY", -1, 1, 0, 3, Q("101.972204 mm")),
])
sketch7.setExpression("Constraints[15]", "Params.sketch7_radius")
sketch7.setExpression("Constraints[16]", "Params.sketch7_width")
sketch7.setExpression("Constraints[17]", "Params.sketch7_height")
pocket6 = body.newObject("PartDesign::Pocket", "Pocket005")
pocket6.Profile = sketch7
pocket6.Type = "UpToFirst"

# Sketch on XY plane
sketch8 = body.newObject("Sketcher::SketchObject", "Sketch007")
sketch8.AttachmentSupport = (doc.getObject("XY_Plane"), [""])
sketch8.MapMode = "FlatFace"
sketch8.AttachmentOffset = App.Placement(App.Vector(0, 0, 0.22 * 25.4), App.Rotation())
sketch8.addGeometry([
    Part.LineSegment(App.Vector(-34, 112, 0), App.Vector(31, 67, 0)),
    Part.LineSegment(App.Vector(31, 67, 0), App.Vector(31, 106, 0)),
    Part.ArcOfCircle(Part.Circle(App.Vector(25, 106, 0), App.Vector(0, 0, 1), 6), math.radians(0), math.radians(90)),
    Part.LineSegment(App.Vector(25, 112, 0), App.Vector(-34, 112, 0)),
], False)
sketch8.addConstraint([
    Sketcher.Constraint("Coincident", 0, 2, 1, 1),
    Sketcher.Constraint("Tangent", 1, 2, 2, 1),
    Sketcher.Constraint("Tangent", 2, 2, 3, 1),
    Sketcher.Constraint("Coincident", 3, 2, 0, 1),
    Sketcher.Constraint("Vertical", 1),
    Sketcher.Constraint("Horizontal", 3),
    Sketcher.Constraint("Radius", 2, Q("0.25 in")),
    Sketcher.Constraint("DistanceX", 3, 2, 3, 1, Q("58.160691 mm")),
    Sketcher.Constraint("DistanceY", 1, 1, 1, 2, Q("38.651128 mm")),
    Sketcher.Constraint("DistanceX", -1, 1, 2, 3, Q("24.514999 mm")),
    Sketcher.Constraint("DistanceY", -1, 1, 2, 3, Q("105.782204 mm")),
])
sketch8.setExpression("Constraints[6]", "Params.sketch8_radius")
pocket7 = body.newObject("PartDesign::Pocket", "Pocket006")
pocket7.Profile = sketch8
pocket7.Type = "UpToFirst"
doc.recompute()

fillet = body.newObject("PartDesign::Fillet", "Fillet")
fillet.Base = (pocket7, edges_at(pocket7, [(-33.646, 112.132, 2.794), (30.865, 67.131, 2.794)]))
fillet.setExpression("Radius", "Params.fillet_radius")
doc.recompute()

fillet2 = body.newObject("PartDesign::Fillet", "Fillet001")
fillet2.Base = (fillet, edges_at(fillet, [
    (-203.565, 112.229, 0),
    (-222.356, 116.084, 0),
    (-222.356, 78.971, 0),
    (-210.588, 80.372, 0),
    (-203.565, 82.826, 0),
    (-133.172, 82.922, 0),
    (-54.902, 79.202, 0),
    (-35.942, 52.4, 0),
    (-34.082, 64.185, 0),
    (-10.159, 66.045, 0),
    (13.765, 64.185, 0),
    (15.625, 55.952, 0),
    (23.245, 44.589, 0),
    (30.865, 56.357, 0),
    (29.425, 66.38, 0),
    (-2.47, 90.385, 0),
    (-33.829, 111.548, 0),
    (-120.05, 112.132, 0),
    (-211.376, 108.904, 0),
    (-201.162, 103.232, 0),
    (-203.225, 100.709, 0),
    (-205.009, 99.102, 0),
    (-205.05, 95.998, 0),
    (-203.235, 94.342, 0),
    (-201.166, 91.82, 0),
    (-220.402, 92.622, 0),
    (-219.831, 95.229, 0),
    (-219.241, 97.527, 0),
    (-219.831, 99.825, 0),
    (-126.79, 97.527, 0),
    (-127.534, 91.286, 0),
    (-135.68, 90.542, 0),
    (-143.826, 91.286, 0),
    (-143.826, 103.768, 0),
    (-135.68, 104.512, 0),
    (-127.534, 103.768, 0),
    (-156.744, 91.286, 0),
    (-164.89, 90.542, 0),
    (-173.78, 97.527, 0),
    (-173.036, 103.768, 0),
    (-164.89, 104.512, 0),
    (-156, 97.527, 0),
    (-98.324, 103.768, 0),
    (-98.324, 91.286, 0),
    (-106.47, 90.542, 0),
    (-114.616, 91.286, 0),
    (-115.36, 97.527, 0),
    (-69.114, 103.768, 0),
    (-68.37, 97.527, 0),
    (-85.406, 91.286, 0),
    (-86.15, 97.527, 0),
    (-85.406, 103.768, 0),
    (-77.26, 104.512, 0),
    (-39.904, 103.768, 0),
    (-39.16, 97.527, 0),
    (-48.05, 90.542, 0),
    (-56.196, 91.286, 0),
    (-56.94, 97.527, 0),
    (-56.196, 103.768, 0),
    (-220.402, 92.622, 5.588),
    (-211.379, 86.151, 5.588),
    (-201.166, 91.82, 5.588),
    (-205.05, 95.998, 5.588),
    (-205.31, 97.583, 5.588),
    (-205.009, 99.102, 5.588),
    (-203.225, 100.709, 5.588),
    (-201.162, 103.232, 5.588),
    (-219.831, 99.825, 5.588),
    (-219.241, 97.527, 5.588),
    (-143.826, 103.768, 5.588),
    (-144.57, 97.527, 5.588),
    (-135.68, 90.542, 5.588),
    (-127.534, 91.286, 5.588),
    (-126.79, 97.527, 5.588),
    (-127.534, 103.768, 5.588),
    (-135.68, 104.512, 5.588),
    (-164.89, 104.512, 5.588),
    (-173.036, 103.768, 5.588),
    (-173.78, 97.527, 5.588),
    (-173.036, 91.286, 5.588),
    (-164.89, 90.542, 5.588),
    (-156.744, 91.286, 5.588),
    (-156, 97.527, 5.588),
    (-106.47, 90.542, 5.588),
    (-97.58, 97.527, 5.588),
    (-98.324, 103.768, 5.588),
    (-114.616, 103.768, 5.588),
    (-85.406, 91.286, 5.588),
    (-77.26, 90.542, 5.588),
    (-69.114, 91.286, 5.588),
    (-68.37, 97.527, 5.588),
    (-77.26, 104.512, 5.588),
    (-85.406, 103.768, 5.588),
    (-56.94, 97.527, 5.588),
    (-56.196, 91.286, 5.588),
    (-39.904, 91.286, 5.588),
    (-39.16, 97.527, 5.588),
    (-39.904, 103.768, 5.588),
    (-48.05, 104.512, 5.588),
    (-56.196, 103.768, 5.588),
    (29.425, 66.38, 5.588),
    (30.865, 56.357, 5.588),
    (-10.159, 66.045, 5.588),
    (-35.942, 52.4, 5.588),
    (-54.902, 79.202, 5.588),
    (-133.172, 82.922, 5.588),
    (-210.588, 80.372, 5.588),
    (-222.356, 78.971, 5.588),
    (-225.063, 97.527, 5.588),
    (-222.356, 116.084, 5.588),
    (-210.588, 114.682, 5.588),
    (-203.565, 112.229, 5.588),
    (-120.05, 112.132, 5.588),
    (-33.829, 111.548, 5.588),
    (-2.47, 90.385, 5.588),
]))
fillet2.setExpression("Radius", "Params.fillet2_radius")

doc.recompute()
